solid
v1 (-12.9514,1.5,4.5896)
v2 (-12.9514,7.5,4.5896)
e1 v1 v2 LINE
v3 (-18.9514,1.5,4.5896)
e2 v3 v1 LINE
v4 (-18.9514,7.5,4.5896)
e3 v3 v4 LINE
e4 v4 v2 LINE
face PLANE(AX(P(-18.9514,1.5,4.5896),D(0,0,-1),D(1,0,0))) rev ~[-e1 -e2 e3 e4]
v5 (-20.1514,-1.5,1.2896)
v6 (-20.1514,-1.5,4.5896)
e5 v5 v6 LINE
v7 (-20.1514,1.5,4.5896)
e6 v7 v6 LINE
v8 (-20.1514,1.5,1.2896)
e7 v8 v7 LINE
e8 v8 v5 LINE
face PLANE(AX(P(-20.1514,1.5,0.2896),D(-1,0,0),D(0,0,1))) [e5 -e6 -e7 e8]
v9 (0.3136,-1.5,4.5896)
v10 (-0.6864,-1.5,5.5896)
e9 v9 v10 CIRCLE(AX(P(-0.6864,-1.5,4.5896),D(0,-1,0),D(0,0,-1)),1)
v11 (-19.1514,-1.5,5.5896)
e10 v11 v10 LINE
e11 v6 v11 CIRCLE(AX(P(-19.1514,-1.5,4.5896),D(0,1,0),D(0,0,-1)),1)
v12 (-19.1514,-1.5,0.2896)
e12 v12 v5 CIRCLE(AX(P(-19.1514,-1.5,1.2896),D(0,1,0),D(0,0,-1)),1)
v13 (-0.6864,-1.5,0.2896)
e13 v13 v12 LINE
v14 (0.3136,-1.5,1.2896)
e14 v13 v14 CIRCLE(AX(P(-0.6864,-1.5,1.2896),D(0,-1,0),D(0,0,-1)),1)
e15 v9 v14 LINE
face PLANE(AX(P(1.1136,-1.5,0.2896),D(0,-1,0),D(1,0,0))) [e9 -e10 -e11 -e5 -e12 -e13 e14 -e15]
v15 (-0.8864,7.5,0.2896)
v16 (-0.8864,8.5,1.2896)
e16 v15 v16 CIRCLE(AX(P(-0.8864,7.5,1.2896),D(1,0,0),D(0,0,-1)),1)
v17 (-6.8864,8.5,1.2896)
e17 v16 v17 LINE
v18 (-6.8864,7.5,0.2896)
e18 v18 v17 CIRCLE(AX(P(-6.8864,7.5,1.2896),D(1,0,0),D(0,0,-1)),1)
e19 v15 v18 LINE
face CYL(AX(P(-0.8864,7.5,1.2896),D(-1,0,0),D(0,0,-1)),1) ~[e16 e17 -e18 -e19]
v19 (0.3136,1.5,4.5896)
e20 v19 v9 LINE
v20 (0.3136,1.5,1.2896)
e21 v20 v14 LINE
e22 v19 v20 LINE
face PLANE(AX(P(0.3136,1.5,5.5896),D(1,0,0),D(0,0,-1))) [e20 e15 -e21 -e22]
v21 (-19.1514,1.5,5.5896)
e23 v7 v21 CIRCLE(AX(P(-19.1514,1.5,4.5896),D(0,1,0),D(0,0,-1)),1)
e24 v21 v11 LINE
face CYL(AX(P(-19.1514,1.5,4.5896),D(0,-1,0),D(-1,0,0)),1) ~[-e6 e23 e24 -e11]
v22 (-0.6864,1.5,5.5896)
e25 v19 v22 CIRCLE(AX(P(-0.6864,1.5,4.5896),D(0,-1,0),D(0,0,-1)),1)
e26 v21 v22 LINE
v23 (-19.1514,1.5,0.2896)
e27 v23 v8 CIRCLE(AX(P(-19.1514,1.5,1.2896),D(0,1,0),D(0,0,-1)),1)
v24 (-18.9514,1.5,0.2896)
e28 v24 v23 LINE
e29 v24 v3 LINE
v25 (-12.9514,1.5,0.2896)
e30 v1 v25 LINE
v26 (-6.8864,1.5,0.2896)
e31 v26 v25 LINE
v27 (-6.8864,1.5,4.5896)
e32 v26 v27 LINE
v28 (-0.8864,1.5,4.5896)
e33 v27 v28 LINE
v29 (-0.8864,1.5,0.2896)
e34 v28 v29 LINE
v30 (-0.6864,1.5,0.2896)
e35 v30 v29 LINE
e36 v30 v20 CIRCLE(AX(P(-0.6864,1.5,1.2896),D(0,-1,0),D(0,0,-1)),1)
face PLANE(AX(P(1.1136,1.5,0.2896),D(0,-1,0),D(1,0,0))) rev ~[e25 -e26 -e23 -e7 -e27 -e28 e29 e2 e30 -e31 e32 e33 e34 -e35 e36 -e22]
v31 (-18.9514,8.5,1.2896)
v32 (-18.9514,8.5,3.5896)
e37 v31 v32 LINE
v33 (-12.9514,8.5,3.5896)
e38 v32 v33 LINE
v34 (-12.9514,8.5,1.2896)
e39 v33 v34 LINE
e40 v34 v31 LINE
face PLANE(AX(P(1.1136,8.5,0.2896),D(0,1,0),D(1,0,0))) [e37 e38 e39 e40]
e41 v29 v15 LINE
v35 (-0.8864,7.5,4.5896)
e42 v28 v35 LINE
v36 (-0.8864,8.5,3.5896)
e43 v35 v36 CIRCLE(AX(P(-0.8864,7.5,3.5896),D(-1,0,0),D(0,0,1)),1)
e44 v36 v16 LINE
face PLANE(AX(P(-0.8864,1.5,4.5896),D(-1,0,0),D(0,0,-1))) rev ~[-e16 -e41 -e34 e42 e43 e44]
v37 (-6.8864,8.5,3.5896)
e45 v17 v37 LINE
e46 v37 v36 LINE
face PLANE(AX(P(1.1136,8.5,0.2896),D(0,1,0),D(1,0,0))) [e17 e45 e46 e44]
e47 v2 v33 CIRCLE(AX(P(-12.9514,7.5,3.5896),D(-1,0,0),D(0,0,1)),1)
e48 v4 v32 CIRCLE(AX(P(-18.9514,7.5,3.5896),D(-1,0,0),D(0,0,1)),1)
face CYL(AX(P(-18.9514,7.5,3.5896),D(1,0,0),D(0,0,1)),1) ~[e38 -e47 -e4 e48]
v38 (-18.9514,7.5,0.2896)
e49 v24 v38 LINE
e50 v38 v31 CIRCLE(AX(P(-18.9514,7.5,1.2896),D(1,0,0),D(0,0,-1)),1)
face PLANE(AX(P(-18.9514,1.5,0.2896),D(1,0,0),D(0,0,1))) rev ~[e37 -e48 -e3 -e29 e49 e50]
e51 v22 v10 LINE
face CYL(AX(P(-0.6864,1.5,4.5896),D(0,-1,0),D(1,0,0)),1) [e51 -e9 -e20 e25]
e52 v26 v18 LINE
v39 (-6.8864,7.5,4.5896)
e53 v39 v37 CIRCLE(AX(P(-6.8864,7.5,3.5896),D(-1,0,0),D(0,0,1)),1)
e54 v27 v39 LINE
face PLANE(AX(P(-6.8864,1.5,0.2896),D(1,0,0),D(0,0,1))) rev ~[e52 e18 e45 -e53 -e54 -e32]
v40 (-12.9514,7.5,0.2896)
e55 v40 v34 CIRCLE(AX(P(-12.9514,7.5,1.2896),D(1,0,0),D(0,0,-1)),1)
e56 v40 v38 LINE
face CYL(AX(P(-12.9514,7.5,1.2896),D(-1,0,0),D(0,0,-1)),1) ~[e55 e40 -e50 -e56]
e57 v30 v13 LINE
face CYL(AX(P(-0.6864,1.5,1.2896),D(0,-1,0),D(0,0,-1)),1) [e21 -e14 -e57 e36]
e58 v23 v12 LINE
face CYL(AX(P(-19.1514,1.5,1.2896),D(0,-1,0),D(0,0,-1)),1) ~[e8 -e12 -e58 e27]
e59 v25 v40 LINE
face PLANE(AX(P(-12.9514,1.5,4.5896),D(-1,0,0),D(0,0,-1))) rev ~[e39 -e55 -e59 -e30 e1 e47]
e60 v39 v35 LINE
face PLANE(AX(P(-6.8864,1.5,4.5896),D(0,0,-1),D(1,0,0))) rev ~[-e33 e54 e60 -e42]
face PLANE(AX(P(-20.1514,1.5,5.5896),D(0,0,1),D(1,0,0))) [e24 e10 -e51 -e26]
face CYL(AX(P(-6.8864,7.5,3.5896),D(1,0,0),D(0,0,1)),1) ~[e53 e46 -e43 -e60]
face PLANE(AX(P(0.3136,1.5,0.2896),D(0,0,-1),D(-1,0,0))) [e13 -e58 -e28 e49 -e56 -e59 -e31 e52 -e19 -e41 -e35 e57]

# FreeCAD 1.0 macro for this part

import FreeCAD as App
import Part
import Sketcher
from FreeCAD import Vector
Q = App.Units.Quantity


def edges_at(feature, points):
    """Names of the edges that pass closest to the given points."""
    edges = feature.Shape.Edges
    near = lambda p: min(range(len(edges)), key=lambda i: edges[i].distToShape(Part.Vertex(*p))[0])
    return sorted({f"Edge{near(p) + 1}" for p in points})

doc = App.newDocument("Part")
params = doc.addObject("Spreadsheet::Sheet", "Params")
for row, (alias, value) in enumerate([
    ("sketch1_height", "5.3 mm"),
    ("pad1_length", "3 mm"),
    ("sketch2_width", "6 mm"),
    ("sketch2_height", "4.3 mm"),
    ("pad2_length", "7 mm"),
    ("fillet_radius", "1 mm"),
    ("fillet2_radius", "1 mm"),
], start=1):
    params.set(f"A{row}", alias)
    params.set(f"B{row}", "=" + value)
    params.setAlias(f"B{row}", alias)

body = doc.addObject("PartDesign::Body", "Body")

# Sketch on XZ plane
sketch1 = body.newObject("Sketcher::SketchObject", "Sketch")
sketch1.AttachmentSupport = (doc.getObject("XZ_Plane"), [""])
sketch1.MapMode = "FlatFace"
sketch1.AttachmentOffset = App.Placement(Vector(0, 0, -1.5), App.Rotation())
sketch1.addGeometry([
    Part.LineSegment(Vector(-20, 0, 0), Vector(0, 0, 0)),
    Part.LineSegment(Vector(0, 0, 0), Vector(0, 6, 0)),
    Part.LineSegment(Vector(0, 6, 0), Vector(-20, 6, 0)),
    Part.LineSegment(Vector(-20, 6, 0), Vector(-20, 0, 0)),
], False)
sketch1.addConstraint([
    Sketcher.Constraint("Coincident", 0, 2, 1, 1),
    Sketcher.Constraint("Coincident", 1, 2, 2, 1),
    Sketcher.Constraint("Coincident", 2, 2, 3, 1),
    Sketcher.Constraint("Coincident", 3, 2, 0, 1),
    Sketcher.Constraint("Horizontal", 0),
    Sketcher.Constraint("Vertical", 1),
    Sketcher.Constraint("Horizontal", 2),
    Sketcher.Constraint("Vertical", 3),
    Sketcher.Constraint("DistanceY", 1, 1, 1, 2, Q("5.3 mm")),
    Sketcher.Constraint("DistanceX", 0, 1, 0, 2, Q("20.465 mm")),
    Sketcher.Constraint("DistanceX", -1, 1, 0, 2, Q("0.3136 mm")),
    Sketcher.Constraint("DistanceY", -1, 1, 0, 2, Q("0.2896 mm")),
])
sketch1.setExpression("Constraints[8]", "Params.sketch1_height")
pad1 = body.newObject("PartDesign::Pad", "Pad")
pad1.Profile = sketch1
pad1.setExpression("Length", "Params.pad1_length")

# Sketch on XZ plane
sketch2 = body.newObject("Sketcher::SketchObject", "Sketch001")
sketch2.AttachmentSupport = (doc.getObject("XZ_Plane"), [""])
sketch2.MapMode = "FlatFace"
sketch2.AttachmentOffset = App.Placement(Vector(0, 0, -1.5), App.Rotation())
sketch2.addGeometry([
    Part.LineSegment(Vector(-0.9, 4.6, 0), Vector(-0.9, 0.3, 0)),  # 0
    Part.LineSegment(Vector(-0.9, 0.3, 0), Vector(-6.9, 0.3, 0)),  # 1
    Part.LineSegment(Vector(-6.9, 0.3, 0), Vector(-6.9, 4.6, 0)),  # 2
    Part.LineSegment(Vector(-6.9, 4.6, 0), Vector(-0.9, 4.6, 0)),  # 3
    Part.LineSegment(Vector(-13, 4.6, 0), Vector(-13, 0.3, 0)),  # 4
    Part.LineSegment(Vector(-13, 0.3, 0), Vector(-19, 0.3, 0)),  # 5
    Part.LineSegment(Vector(-19, 0.3, 0), Vector(-19, 4.6, 0)),  # 6
    Part.LineSegment(Vector(-19, 4.6, 0), Vector(-13, 4.6, 0)),  # 7
], False)
sketch2.addConstraint([
    Sketcher.Constraint("Coincident", 0, 2, 1, 1),
    Sketcher.Constraint("Coincident", 1, 2, 2, 1),
    Sketcher.Constraint("Coincident", 2, 2, 3, 1),
    Sketcher.Constraint("Coincident", 3, 2, 0, 1),
    Sketcher.Constraint("Coincident", 4, 2, 5, 1),
    Sketcher.Constraint("Coincident", 5, 2, 6, 1),
    Sketcher.Constraint("Coincident", 6, 2, 7, 1),
    Sketcher.Constraint("Coincident", 7, 2, 4, 1),
    Sketcher.Constraint("Vertical", 0),
    Sketcher.Constraint("Horizontal", 1),
    Sketcher.Constraint("Vertical", 2),
    Sketcher.Constraint("Horizontal", 3),
    Sketcher.Constraint("Vertical", 4),
    Sketcher.Constraint("Horizontal", 5),
    Sketcher.Constraint("Vertical", 6),
    Sketcher.Constraint("Horizontal", 7),
    Sketcher.Constraint("Horizontal", 1, 2, 4, 2),
    Sketcher.Constraint("Horizontal", 3, 2, 6, 2),
    Sketcher.Constraint("Equal", 3, 5),
    Sketcher.Constraint("DistanceX", 1, 2, 1, 1, Q("6 mm")),
    Sketcher.Constraint("DistanceY", 0, 2, 0, 1, Q("4.3 mm")),
    Sketcher.Constraint("DistanceX", 4, 2, 1, 2, Q("6.065 mm")),
    Sketcher.Constraint("DistanceX", 0, 2, -1, 1, Q("0.8864 mm")),
    Sketcher.Constraint("DistanceY", -1, 1, 0, 2, Q("0.2896 mm")),
])
sketch2.setExpression("Constraints[19]", "Params.sketch2_width")
sketch2.setExpression("Constraints[20]", "Params.sketch2_height")
pad2 = body.newObject("PartDesign::Pad", "Pad001")
pad2.Profile = sketch2
pad2.setExpression("Length", "Params.pad2_length")
pad2.Reversed = True
doc.recompute()

fillet = body.newObject("PartDesign::Fillet", "Fillet")
fillet.Base = (pad2, edges_at(pad2, [
    (-20.151, 0, 5.59),
    (-20.151, 0, 0.29),
    (0.314, 0, 5.59),
    (0.314, 0, 0.29),
]))
fillet.setExpression("Radius", "Params.fillet_radius")
doc.recompute()

fillet2 = body.newObject("PartDesign::Fillet", "Fillet001")
fillet2.Base = (fillet, edges_at(fillet, [
    (-3.886, 8.5, 4.59),
    (-3.886, 8.5, 0.29),
    (-15.951, 8.5, 0.29),
    (-15.951, 8.5, 4.59),
]))
fillet2.setExpression("Radius", "Params.fillet2_radius")

doc.recompute()
